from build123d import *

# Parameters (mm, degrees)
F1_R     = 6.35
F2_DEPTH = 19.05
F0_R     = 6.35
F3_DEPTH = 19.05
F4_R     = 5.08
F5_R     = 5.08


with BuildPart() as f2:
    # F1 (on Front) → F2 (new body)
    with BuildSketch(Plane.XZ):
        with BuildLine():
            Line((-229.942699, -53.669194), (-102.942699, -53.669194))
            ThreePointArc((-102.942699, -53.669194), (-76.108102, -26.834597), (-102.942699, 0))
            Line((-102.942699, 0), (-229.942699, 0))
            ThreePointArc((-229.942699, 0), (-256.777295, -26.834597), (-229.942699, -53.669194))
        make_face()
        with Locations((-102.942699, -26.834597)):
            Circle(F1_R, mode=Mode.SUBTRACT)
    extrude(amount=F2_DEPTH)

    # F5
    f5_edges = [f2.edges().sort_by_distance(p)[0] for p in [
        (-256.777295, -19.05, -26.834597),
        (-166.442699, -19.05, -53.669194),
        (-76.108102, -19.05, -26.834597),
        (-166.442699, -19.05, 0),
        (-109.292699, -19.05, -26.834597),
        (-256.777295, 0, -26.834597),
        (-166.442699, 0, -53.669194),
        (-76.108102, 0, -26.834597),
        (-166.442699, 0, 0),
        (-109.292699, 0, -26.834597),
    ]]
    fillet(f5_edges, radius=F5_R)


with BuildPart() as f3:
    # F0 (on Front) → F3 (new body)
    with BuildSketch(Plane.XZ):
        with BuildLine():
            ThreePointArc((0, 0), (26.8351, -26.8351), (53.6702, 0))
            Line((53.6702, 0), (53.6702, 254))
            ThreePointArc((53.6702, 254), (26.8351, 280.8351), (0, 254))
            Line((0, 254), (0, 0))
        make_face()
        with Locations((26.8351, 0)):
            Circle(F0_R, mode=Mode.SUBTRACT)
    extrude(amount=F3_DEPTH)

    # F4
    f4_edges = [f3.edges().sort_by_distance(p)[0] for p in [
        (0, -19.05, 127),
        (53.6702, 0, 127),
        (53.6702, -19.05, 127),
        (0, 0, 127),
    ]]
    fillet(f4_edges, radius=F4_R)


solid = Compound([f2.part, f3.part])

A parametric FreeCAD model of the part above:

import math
import FreeCAD as App
import Part
import Sketcher
Q = App.Units.Quantity


def edges_at(feature, points):
    """Names of the edges that pass closest to the given points."""
    edges = feature.Shape.Edges
    near = lambda p: min(range(len(edges)), key=lambda i: edges[i].distToShape(Part.Vertex(*p))[0])
    return sorted({f"Edge{near(p) + 1}" for p in points})

doc = App.newDocument("Part")
params = doc.addObject("Spreadsheet::Sheet", "Params")
for row, (alias, value) in enumerate([
    ("sketch1_diameter", "0.5 in"),
    ("sketch1_width", "5 in"),
    ("pad1_length", "0.75 in"),
    ("fillet_radius", "0.2 in"),
    ("sketch2_diameter", "0.5 in"),
    ("sketch2_height", "10 in"),
    ("pad2_length", "0.75 in"),
    ("fillet2_radius", "0.2 in"),
], start=1):
    params.set(f"A{row}", alias)
    params.set(f"B{row}", "=" + value)
    params.setAlias(f"B{row}", alias)

body = doc.addObject("PartDesign::Body", "Body")

# Sketch on XZ plane
sketch1 = doc.addObject("Sketcher::SketchObject", "Sketch")
body.addObject(sketch1)
sketch1.AttachmentSupport = (doc.XZ_Plane, [""])
sketch1.MapMode = "FlatFace"
sketch1.addGeometry(Part.LineSegment(App.Vector(-230, -54, 0), App.Vector(-103, -54, 0)), False)
sketch1.addGeometry(Part.ArcOfCircle(Part.Circle(App.Vector(-103, -27, 0), App.Vector(0, 0, 1), 27), math.radians(-90), math.radians(90)), False)
sketch1.addGeometry(Part.LineSegment(App.Vector(-103, 0, 0), App.Vector(-230, 0, 0)), False)
sketch1.addGeometry(Part.ArcOfCircle(Part.Circle(App.Vector(-230, -27, 0), App.Vector(0, 0, 1), 27), math.radians(90), math.radians(270)), False)
sketch1.addGeometry(Part.Circle(App.Vector(-103, -27, 0), App.Vector(0, 0, 1), 6), False)
sketch1.addConstraint(Sketcher.Constraint("Tangent", 0, 2, 1, 1))
sketch1.addConstraint(Sketcher.Constraint("Tangent", 1, 2, 2, 1))
sketch1.addConstraint(Sketcher.Constraint("Tangent", 2, 2, 3, 1))
sketch1.addConstraint(Sketcher.Constraint("Tangent", 3, 2, 0, 1))
sketch1.addConstraint(Sketcher.Constraint("Horizontal", 0))
sketch1.addConstraint(Sketcher.Constraint("Horizontal", 2))
sketch1.addConstraint(Sketcher.Constraint("Coincident", 4, 3, 1, 3))
sketch1.addConstraint(Sketcher.Constraint("PointOnObject", 1, 2, -1))
sketch1.addConstraint(Sketcher.Constraint("Diameter", 4, Q("0.5 in")))
sketch1.addConstraint(Sketcher.Constraint("DistanceX", 0, 1, 0, 2, Q("5 in")))
sketch1.addConstraint(Sketcher.Constraint("Radius", 1, 26.834597))
sketch1.addConstraint(Sketcher.Constraint("DistanceX", 1, 3, -1, 1, 102.942699))
sketch1.setExpression("Constraints[8]", "Params.sketch1_diameter")
sketch1.setExpression("Constraints[9]", "Params.sketch1_width")
pad1 = doc.addObject("PartDesign::Pad", "Pad")
body.addObject(pad1)
pad1.Profile = sketch1
pad1.setExpression("Length", "Params.pad1_length")
doc.recompute()

fillet = doc.addObject("PartDesign::Fillet", "Fillet")
body.addObject(fillet)
fillet.Base = (pad1, edges_at(pad1, [
    (-256.777, -19.05, -26.835),
    (-166.443, -19.05, -53.669),
    (-76.108, -19.05, -26.835),
    (-166.443, -19.05, 0),
    (-109.293, -19.05, -26.835),
    (-256.777, 0, -26.835),
    (-166.443, 0, -53.669),
    (-76.108, 0, -26.835),
    (-166.443, 0, 0),
    (-109.293, 0, -26.835),
]))
fillet.setExpression("Radius", "Params.fillet_radius")
body2 = doc.addObject("PartDesign::Body", "Body001")

# Sketch on XZ plane
sketch2 = doc.addObject("Sketcher::SketchObject", "Sketch001")
body2.addObject(sketch2)
sketch2.AttachmentSupport = (doc.getObject("XZ_Plane001"), [""])
sketch2.MapMode = "FlatFace"
sketch2.addGeometry(Part.ArcOfCircle(Part.Circle(App.Vector(27, 0, 0), App.Vector(0, 0, 1), 27), math.radians(180), math.radians(360)), False)
sketch2.addGeometry(Part.LineSegment(App.Vector(54, 0, 0), App.Vector(54, 254, 0)), False)
sketch2.addGeometry(Part.ArcOfCircle(Part.Circle(App.Vector(27, 254, 0), App.Vector(0, 0, 1), 27), math.radians(0), math.radians(180)), False)
sketch2.addGeometry(Part.LineSegment(App.Vector(0, 254, 0), App.Vector(0, 0, 0)), False)
sketch2.addGeometry(Part.Circle(App.Vector(27, 0, 0), App.Vector(0, 0, 1), 6), False)
sketch2.addConstraint(Sketcher.Constraint("Tangent", 0, 2, 1, 1))
sketch2.addConstraint(Sketcher.Constraint("Tangent", 1, 2, 2, 1))
sketch2.addConstraint(Sketcher.Constraint("Tangent", 2, 2, 3, 1))
sketch2.addConstraint(Sketcher.Constraint("Tangent", 3, 2, 0, 1))
sketch2.addConstraint(Sketcher.Constraint("Vertical", 1))
sketch2.addConstraint(Sketcher.Constraint("Vertical", 3))
sketch2.addConstraint(Sketcher.Constraint("Coincident", 3, 2, -1, 1))
sketch2.addConstraint(Sketcher.Constraint("Coincident", 4, 3, 0, 3))
sketch2.addConstraint(Sketcher.Constraint("Diameter", 4, Q("0.5 in")))
sketch2.addConstraint(Sketcher.Constraint("DistanceY", 1, 1, 1, 2, Q("10 in")))
sketch2.addConstraint(Sketcher.Constraint("Radius", 0, Q("1.0565 in")))
sketch2.setExpression("Constraints[8]", "Params.sketch2_diameter")
sketch2.setExpression("Constraints[9]", "Params.sketch2_height")
pad2 = doc.addObject("PartDesign::Pad", "Pad001")
body2.addObject(pad2)
pad2.Profile = sketch2
pad2.setExpression("Length", "Params.pad2_length")
doc.recompute()

fillet2 = doc.addObject("PartDesign::Fillet", "Fillet001")
body2.addObject(fillet2)
fillet2.Base = (pad2, edges_at(pad2, [
    (0, -19.05, 127),
    (53.67, 0, 127),
    (53.67, -19.05, 127),
    (0, 0, 127),
]))
fillet2.setExpression("Radius", "Params.fillet2_radius")

doc.recompute()
